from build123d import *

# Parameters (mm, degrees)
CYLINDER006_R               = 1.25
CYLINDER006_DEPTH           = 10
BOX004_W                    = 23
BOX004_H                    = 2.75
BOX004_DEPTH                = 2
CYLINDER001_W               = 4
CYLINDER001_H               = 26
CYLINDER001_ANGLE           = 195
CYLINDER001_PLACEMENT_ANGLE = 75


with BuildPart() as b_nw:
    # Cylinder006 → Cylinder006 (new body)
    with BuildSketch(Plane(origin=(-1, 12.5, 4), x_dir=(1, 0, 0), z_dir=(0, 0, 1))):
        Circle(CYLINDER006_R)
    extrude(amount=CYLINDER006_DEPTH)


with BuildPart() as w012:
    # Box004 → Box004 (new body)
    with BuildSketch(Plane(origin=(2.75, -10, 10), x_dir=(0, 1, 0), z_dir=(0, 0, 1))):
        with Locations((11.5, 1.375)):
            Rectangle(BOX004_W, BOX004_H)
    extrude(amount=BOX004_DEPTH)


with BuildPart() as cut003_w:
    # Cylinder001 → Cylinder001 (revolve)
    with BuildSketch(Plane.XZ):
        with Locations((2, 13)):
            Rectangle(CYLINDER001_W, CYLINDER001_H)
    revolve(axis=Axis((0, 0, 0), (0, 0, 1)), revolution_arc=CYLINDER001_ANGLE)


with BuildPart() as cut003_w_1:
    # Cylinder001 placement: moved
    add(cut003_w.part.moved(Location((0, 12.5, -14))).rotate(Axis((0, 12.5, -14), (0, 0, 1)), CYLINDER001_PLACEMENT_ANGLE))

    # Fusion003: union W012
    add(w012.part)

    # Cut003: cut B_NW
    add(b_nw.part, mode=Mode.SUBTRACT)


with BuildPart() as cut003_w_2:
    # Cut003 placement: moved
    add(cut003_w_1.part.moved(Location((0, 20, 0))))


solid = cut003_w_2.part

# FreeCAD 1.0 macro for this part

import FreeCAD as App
import Part
import Sketcher

V = App.Vector
Q = App.Units.Quantity

doc = App.newDocument("Part")
params = doc.addObject("Spreadsheet::Sheet", "Params")
for row, (alias, value) in enumerate([
    ("sketch1_diameter", "2.5 mm"),
    ("pad1_length", "10 mm"),
    ("sketch2_height", "23 mm"),
    ("sketch2_width", "2.75 mm"),
    ("pad2_length", "2 mm"),
    ("sketch3_width", "4 mm"),
    ("sketch3_height", "26 mm"),
    ("revolution_angle", "195 deg"),
], start=1):
    params.set(f"A{row}", alias)
    params.set(f"B{row}", "=" + value)
    params.setAlias(f"B{row}", alias)

body = doc.addObject("PartDesign::Body", "Body")

sketch1 = body.newObject("Sketcher::SketchObject", "Sketch")
sketch1.AttachmentSupport = (doc.getObject("XY_Plane"), [""])
sketch1.MapMode = "FlatFace"
sketch1.AttachmentOffset = App.Placement(V(0, 0, 4), App.Rotation())
sketch1.addGeometry(Part.Circle(V(-1, 12.5, 0), V(0, 0, 1), 1.2), False)
sketch1.addConstraint([
    Sketcher.Constraint("Diameter", 0, Q("2.5 mm")),
    Sketcher.Constraint("DistanceX", 0, 3, -1, 1, Q("1 mm")),
    Sketcher.Constraint("DistanceY", -1, 1, 0, 3, Q("12.5 mm")),
])
sketch1.setExpression("Constraints[0]", "Params.sketch1_diameter")
pad1 = body.newObject("PartDesign::Pad", "Pad")
pad1.Profile = sketch1
pad1.setExpression("Length", "Params.pad1_length")
body2 = doc.addObject("PartDesign::Body", "Body001")

sketch2 = body2.newObject("Sketcher::SketchObject", "Sketch001")
sketch2.AttachmentSupport = (doc.getObject("XY_Plane001"), [""])
sketch2.MapMode = "FlatFace"
sketch2.AttachmentOffset = App.Placement(V(0, 0, 10), App.Rotation())
sketch2.addGeometry([
    Part.LineSegment(V(0, -10, 0), V(2.8, -10, 0)),
    Part.LineSegment(V(2.8, -10, 0), V(2.8, 13, 0)),
    Part.LineSegment(V(2.8, 13, 0), V(0, 13, 0)),
    Part.LineSegment(V(0, 13, 0), V(0, -10, 0)),
], False)
sketch2.addConstraint([
    Sketcher.Constraint("Coincident", 0, 2, 1, 1),
    Sketcher.Constraint("Coincident", 1, 2, 2, 1),
    Sketcher.Constraint("Coincident", 2, 2, 3, 1),
    Sketcher.Constraint("Coincident", 3, 2, 0, 1),
    Sketcher.Constraint("Horizontal", 0),
    Sketcher.Constraint("Vertical", 1),
    Sketcher.Constraint("Horizontal", 2),
    Sketcher.Constraint("Vertical", 3),
    Sketcher.Constraint("PointOnObject", 2, 2, -2),
    Sketcher.Constraint("DistanceY", 1, 1, 1, 2, Q("23 mm")),
    Sketcher.Constraint("DistanceY", 0, 2, -1, 1, Q("10 mm")),
    Sketcher.Constraint("DistanceX", 0, 1, 0, 2, Q("2.75 mm")),
])
sketch2.setExpression("Constraints[9]", "Params.sketch2_height")
sketch2.setExpression("Constraints[11]", "Params.sketch2_width")
pad2 = body2.newObject("PartDesign::Pad", "Pad001")
pad2.Profile = sketch2
pad2.setExpression("Length", "Params.pad2_length")
body3 = doc.addObject("PartDesign::Body", "Body002")

sketch3 = body3.newObject("Sketcher::SketchObject", "Sketch002")
sketch3.AttachmentSupport = (doc.getObject("XZ_Plane002"), [""])
sketch3.MapMode = "FlatFace"
sketch3.addGeometry([
    Part.LineSegment(V(0, 26, 0), V(0, 0, 0)),
    Part.LineSegment(V(0, 0, 0), V(4, 0, 0)),
    Part.LineSegment(V(4, 0, 0), V(4, 26, 0)),
    Part.LineSegment(V(4, 26, 0), V(0, 26, 0)),
], False)
sketch3.addConstraint([
    Sketcher.Constraint("Coincident", 0, 2, 1, 1),
    Sketcher.Constraint("Coincident", 1, 2, 2, 1),
    Sketcher.Constraint("Coincident", 2, 2, 3, 1),
    Sketcher.Constraint("Coincident", 3, 2, 0, 1),
    Sketcher.Constraint("Vertical", 0),
    Sketcher.Constraint("Horizontal", 1),
    Sketcher.Constraint("Vertical", 2),
    Sketcher.Constraint("Horizontal", 3),
    Sketcher.Constraint("Coincident", 0, 2, -1, 1),
    Sketcher.Constraint("DistanceX", 1, 1, 1, 2, Q("4 mm")),
    Sketcher.Constraint("DistanceY", 0, 2, 0, 1, Q("26 mm")),
])
sketch3.setExpression("Constraints[9]", "Params.sketch3_width")
sketch3.setExpression("Constraints[10]", "Params.sketch3_height")
revolution = body3.newObject("PartDesign::Revolution", "Revolution")
revolution.Profile = sketch3
revolution.ReferenceAxis = (sketch3, ["V_Axis"])
revolution.setExpression("Angle", "Params.revolution_angle")
body4 = doc.addObject("PartDesign::Body", "Body003")
doc.recompute()

body3.Placement = App.Placement(V(0, 12.5, -14), App.Rotation(V(0, 0, 1), 75))
boolean = body4.newObject("PartDesign::Boolean", "Boolean")
boolean.Type = "Fuse"
boolean.addObjects([body3])
doc.recompute()

boolean2 = body4.newObject("PartDesign::Boolean", "Boolean001")
boolean2.Type = "Fuse"
boolean2.addObjects([body2])
doc.recompute()

boolean3 = body4.newObject("PartDesign::Boolean", "Boolean002")
boolean3.Type = "Cut"
boolean3.addObjects([body])
body5 = doc.addObject("PartDesign::Body", "Body004")
doc.recompute()

body4.Placement = App.Placement(V(0, 20, 0), App.Rotation(V(0, 0, 1), 0))
boolean4 = body5.newObject("PartDesign::Boolean", "Boolean003")
boolean4.Type = "Fuse"
boolean4.addObjects([body4])

doc.recompute()
